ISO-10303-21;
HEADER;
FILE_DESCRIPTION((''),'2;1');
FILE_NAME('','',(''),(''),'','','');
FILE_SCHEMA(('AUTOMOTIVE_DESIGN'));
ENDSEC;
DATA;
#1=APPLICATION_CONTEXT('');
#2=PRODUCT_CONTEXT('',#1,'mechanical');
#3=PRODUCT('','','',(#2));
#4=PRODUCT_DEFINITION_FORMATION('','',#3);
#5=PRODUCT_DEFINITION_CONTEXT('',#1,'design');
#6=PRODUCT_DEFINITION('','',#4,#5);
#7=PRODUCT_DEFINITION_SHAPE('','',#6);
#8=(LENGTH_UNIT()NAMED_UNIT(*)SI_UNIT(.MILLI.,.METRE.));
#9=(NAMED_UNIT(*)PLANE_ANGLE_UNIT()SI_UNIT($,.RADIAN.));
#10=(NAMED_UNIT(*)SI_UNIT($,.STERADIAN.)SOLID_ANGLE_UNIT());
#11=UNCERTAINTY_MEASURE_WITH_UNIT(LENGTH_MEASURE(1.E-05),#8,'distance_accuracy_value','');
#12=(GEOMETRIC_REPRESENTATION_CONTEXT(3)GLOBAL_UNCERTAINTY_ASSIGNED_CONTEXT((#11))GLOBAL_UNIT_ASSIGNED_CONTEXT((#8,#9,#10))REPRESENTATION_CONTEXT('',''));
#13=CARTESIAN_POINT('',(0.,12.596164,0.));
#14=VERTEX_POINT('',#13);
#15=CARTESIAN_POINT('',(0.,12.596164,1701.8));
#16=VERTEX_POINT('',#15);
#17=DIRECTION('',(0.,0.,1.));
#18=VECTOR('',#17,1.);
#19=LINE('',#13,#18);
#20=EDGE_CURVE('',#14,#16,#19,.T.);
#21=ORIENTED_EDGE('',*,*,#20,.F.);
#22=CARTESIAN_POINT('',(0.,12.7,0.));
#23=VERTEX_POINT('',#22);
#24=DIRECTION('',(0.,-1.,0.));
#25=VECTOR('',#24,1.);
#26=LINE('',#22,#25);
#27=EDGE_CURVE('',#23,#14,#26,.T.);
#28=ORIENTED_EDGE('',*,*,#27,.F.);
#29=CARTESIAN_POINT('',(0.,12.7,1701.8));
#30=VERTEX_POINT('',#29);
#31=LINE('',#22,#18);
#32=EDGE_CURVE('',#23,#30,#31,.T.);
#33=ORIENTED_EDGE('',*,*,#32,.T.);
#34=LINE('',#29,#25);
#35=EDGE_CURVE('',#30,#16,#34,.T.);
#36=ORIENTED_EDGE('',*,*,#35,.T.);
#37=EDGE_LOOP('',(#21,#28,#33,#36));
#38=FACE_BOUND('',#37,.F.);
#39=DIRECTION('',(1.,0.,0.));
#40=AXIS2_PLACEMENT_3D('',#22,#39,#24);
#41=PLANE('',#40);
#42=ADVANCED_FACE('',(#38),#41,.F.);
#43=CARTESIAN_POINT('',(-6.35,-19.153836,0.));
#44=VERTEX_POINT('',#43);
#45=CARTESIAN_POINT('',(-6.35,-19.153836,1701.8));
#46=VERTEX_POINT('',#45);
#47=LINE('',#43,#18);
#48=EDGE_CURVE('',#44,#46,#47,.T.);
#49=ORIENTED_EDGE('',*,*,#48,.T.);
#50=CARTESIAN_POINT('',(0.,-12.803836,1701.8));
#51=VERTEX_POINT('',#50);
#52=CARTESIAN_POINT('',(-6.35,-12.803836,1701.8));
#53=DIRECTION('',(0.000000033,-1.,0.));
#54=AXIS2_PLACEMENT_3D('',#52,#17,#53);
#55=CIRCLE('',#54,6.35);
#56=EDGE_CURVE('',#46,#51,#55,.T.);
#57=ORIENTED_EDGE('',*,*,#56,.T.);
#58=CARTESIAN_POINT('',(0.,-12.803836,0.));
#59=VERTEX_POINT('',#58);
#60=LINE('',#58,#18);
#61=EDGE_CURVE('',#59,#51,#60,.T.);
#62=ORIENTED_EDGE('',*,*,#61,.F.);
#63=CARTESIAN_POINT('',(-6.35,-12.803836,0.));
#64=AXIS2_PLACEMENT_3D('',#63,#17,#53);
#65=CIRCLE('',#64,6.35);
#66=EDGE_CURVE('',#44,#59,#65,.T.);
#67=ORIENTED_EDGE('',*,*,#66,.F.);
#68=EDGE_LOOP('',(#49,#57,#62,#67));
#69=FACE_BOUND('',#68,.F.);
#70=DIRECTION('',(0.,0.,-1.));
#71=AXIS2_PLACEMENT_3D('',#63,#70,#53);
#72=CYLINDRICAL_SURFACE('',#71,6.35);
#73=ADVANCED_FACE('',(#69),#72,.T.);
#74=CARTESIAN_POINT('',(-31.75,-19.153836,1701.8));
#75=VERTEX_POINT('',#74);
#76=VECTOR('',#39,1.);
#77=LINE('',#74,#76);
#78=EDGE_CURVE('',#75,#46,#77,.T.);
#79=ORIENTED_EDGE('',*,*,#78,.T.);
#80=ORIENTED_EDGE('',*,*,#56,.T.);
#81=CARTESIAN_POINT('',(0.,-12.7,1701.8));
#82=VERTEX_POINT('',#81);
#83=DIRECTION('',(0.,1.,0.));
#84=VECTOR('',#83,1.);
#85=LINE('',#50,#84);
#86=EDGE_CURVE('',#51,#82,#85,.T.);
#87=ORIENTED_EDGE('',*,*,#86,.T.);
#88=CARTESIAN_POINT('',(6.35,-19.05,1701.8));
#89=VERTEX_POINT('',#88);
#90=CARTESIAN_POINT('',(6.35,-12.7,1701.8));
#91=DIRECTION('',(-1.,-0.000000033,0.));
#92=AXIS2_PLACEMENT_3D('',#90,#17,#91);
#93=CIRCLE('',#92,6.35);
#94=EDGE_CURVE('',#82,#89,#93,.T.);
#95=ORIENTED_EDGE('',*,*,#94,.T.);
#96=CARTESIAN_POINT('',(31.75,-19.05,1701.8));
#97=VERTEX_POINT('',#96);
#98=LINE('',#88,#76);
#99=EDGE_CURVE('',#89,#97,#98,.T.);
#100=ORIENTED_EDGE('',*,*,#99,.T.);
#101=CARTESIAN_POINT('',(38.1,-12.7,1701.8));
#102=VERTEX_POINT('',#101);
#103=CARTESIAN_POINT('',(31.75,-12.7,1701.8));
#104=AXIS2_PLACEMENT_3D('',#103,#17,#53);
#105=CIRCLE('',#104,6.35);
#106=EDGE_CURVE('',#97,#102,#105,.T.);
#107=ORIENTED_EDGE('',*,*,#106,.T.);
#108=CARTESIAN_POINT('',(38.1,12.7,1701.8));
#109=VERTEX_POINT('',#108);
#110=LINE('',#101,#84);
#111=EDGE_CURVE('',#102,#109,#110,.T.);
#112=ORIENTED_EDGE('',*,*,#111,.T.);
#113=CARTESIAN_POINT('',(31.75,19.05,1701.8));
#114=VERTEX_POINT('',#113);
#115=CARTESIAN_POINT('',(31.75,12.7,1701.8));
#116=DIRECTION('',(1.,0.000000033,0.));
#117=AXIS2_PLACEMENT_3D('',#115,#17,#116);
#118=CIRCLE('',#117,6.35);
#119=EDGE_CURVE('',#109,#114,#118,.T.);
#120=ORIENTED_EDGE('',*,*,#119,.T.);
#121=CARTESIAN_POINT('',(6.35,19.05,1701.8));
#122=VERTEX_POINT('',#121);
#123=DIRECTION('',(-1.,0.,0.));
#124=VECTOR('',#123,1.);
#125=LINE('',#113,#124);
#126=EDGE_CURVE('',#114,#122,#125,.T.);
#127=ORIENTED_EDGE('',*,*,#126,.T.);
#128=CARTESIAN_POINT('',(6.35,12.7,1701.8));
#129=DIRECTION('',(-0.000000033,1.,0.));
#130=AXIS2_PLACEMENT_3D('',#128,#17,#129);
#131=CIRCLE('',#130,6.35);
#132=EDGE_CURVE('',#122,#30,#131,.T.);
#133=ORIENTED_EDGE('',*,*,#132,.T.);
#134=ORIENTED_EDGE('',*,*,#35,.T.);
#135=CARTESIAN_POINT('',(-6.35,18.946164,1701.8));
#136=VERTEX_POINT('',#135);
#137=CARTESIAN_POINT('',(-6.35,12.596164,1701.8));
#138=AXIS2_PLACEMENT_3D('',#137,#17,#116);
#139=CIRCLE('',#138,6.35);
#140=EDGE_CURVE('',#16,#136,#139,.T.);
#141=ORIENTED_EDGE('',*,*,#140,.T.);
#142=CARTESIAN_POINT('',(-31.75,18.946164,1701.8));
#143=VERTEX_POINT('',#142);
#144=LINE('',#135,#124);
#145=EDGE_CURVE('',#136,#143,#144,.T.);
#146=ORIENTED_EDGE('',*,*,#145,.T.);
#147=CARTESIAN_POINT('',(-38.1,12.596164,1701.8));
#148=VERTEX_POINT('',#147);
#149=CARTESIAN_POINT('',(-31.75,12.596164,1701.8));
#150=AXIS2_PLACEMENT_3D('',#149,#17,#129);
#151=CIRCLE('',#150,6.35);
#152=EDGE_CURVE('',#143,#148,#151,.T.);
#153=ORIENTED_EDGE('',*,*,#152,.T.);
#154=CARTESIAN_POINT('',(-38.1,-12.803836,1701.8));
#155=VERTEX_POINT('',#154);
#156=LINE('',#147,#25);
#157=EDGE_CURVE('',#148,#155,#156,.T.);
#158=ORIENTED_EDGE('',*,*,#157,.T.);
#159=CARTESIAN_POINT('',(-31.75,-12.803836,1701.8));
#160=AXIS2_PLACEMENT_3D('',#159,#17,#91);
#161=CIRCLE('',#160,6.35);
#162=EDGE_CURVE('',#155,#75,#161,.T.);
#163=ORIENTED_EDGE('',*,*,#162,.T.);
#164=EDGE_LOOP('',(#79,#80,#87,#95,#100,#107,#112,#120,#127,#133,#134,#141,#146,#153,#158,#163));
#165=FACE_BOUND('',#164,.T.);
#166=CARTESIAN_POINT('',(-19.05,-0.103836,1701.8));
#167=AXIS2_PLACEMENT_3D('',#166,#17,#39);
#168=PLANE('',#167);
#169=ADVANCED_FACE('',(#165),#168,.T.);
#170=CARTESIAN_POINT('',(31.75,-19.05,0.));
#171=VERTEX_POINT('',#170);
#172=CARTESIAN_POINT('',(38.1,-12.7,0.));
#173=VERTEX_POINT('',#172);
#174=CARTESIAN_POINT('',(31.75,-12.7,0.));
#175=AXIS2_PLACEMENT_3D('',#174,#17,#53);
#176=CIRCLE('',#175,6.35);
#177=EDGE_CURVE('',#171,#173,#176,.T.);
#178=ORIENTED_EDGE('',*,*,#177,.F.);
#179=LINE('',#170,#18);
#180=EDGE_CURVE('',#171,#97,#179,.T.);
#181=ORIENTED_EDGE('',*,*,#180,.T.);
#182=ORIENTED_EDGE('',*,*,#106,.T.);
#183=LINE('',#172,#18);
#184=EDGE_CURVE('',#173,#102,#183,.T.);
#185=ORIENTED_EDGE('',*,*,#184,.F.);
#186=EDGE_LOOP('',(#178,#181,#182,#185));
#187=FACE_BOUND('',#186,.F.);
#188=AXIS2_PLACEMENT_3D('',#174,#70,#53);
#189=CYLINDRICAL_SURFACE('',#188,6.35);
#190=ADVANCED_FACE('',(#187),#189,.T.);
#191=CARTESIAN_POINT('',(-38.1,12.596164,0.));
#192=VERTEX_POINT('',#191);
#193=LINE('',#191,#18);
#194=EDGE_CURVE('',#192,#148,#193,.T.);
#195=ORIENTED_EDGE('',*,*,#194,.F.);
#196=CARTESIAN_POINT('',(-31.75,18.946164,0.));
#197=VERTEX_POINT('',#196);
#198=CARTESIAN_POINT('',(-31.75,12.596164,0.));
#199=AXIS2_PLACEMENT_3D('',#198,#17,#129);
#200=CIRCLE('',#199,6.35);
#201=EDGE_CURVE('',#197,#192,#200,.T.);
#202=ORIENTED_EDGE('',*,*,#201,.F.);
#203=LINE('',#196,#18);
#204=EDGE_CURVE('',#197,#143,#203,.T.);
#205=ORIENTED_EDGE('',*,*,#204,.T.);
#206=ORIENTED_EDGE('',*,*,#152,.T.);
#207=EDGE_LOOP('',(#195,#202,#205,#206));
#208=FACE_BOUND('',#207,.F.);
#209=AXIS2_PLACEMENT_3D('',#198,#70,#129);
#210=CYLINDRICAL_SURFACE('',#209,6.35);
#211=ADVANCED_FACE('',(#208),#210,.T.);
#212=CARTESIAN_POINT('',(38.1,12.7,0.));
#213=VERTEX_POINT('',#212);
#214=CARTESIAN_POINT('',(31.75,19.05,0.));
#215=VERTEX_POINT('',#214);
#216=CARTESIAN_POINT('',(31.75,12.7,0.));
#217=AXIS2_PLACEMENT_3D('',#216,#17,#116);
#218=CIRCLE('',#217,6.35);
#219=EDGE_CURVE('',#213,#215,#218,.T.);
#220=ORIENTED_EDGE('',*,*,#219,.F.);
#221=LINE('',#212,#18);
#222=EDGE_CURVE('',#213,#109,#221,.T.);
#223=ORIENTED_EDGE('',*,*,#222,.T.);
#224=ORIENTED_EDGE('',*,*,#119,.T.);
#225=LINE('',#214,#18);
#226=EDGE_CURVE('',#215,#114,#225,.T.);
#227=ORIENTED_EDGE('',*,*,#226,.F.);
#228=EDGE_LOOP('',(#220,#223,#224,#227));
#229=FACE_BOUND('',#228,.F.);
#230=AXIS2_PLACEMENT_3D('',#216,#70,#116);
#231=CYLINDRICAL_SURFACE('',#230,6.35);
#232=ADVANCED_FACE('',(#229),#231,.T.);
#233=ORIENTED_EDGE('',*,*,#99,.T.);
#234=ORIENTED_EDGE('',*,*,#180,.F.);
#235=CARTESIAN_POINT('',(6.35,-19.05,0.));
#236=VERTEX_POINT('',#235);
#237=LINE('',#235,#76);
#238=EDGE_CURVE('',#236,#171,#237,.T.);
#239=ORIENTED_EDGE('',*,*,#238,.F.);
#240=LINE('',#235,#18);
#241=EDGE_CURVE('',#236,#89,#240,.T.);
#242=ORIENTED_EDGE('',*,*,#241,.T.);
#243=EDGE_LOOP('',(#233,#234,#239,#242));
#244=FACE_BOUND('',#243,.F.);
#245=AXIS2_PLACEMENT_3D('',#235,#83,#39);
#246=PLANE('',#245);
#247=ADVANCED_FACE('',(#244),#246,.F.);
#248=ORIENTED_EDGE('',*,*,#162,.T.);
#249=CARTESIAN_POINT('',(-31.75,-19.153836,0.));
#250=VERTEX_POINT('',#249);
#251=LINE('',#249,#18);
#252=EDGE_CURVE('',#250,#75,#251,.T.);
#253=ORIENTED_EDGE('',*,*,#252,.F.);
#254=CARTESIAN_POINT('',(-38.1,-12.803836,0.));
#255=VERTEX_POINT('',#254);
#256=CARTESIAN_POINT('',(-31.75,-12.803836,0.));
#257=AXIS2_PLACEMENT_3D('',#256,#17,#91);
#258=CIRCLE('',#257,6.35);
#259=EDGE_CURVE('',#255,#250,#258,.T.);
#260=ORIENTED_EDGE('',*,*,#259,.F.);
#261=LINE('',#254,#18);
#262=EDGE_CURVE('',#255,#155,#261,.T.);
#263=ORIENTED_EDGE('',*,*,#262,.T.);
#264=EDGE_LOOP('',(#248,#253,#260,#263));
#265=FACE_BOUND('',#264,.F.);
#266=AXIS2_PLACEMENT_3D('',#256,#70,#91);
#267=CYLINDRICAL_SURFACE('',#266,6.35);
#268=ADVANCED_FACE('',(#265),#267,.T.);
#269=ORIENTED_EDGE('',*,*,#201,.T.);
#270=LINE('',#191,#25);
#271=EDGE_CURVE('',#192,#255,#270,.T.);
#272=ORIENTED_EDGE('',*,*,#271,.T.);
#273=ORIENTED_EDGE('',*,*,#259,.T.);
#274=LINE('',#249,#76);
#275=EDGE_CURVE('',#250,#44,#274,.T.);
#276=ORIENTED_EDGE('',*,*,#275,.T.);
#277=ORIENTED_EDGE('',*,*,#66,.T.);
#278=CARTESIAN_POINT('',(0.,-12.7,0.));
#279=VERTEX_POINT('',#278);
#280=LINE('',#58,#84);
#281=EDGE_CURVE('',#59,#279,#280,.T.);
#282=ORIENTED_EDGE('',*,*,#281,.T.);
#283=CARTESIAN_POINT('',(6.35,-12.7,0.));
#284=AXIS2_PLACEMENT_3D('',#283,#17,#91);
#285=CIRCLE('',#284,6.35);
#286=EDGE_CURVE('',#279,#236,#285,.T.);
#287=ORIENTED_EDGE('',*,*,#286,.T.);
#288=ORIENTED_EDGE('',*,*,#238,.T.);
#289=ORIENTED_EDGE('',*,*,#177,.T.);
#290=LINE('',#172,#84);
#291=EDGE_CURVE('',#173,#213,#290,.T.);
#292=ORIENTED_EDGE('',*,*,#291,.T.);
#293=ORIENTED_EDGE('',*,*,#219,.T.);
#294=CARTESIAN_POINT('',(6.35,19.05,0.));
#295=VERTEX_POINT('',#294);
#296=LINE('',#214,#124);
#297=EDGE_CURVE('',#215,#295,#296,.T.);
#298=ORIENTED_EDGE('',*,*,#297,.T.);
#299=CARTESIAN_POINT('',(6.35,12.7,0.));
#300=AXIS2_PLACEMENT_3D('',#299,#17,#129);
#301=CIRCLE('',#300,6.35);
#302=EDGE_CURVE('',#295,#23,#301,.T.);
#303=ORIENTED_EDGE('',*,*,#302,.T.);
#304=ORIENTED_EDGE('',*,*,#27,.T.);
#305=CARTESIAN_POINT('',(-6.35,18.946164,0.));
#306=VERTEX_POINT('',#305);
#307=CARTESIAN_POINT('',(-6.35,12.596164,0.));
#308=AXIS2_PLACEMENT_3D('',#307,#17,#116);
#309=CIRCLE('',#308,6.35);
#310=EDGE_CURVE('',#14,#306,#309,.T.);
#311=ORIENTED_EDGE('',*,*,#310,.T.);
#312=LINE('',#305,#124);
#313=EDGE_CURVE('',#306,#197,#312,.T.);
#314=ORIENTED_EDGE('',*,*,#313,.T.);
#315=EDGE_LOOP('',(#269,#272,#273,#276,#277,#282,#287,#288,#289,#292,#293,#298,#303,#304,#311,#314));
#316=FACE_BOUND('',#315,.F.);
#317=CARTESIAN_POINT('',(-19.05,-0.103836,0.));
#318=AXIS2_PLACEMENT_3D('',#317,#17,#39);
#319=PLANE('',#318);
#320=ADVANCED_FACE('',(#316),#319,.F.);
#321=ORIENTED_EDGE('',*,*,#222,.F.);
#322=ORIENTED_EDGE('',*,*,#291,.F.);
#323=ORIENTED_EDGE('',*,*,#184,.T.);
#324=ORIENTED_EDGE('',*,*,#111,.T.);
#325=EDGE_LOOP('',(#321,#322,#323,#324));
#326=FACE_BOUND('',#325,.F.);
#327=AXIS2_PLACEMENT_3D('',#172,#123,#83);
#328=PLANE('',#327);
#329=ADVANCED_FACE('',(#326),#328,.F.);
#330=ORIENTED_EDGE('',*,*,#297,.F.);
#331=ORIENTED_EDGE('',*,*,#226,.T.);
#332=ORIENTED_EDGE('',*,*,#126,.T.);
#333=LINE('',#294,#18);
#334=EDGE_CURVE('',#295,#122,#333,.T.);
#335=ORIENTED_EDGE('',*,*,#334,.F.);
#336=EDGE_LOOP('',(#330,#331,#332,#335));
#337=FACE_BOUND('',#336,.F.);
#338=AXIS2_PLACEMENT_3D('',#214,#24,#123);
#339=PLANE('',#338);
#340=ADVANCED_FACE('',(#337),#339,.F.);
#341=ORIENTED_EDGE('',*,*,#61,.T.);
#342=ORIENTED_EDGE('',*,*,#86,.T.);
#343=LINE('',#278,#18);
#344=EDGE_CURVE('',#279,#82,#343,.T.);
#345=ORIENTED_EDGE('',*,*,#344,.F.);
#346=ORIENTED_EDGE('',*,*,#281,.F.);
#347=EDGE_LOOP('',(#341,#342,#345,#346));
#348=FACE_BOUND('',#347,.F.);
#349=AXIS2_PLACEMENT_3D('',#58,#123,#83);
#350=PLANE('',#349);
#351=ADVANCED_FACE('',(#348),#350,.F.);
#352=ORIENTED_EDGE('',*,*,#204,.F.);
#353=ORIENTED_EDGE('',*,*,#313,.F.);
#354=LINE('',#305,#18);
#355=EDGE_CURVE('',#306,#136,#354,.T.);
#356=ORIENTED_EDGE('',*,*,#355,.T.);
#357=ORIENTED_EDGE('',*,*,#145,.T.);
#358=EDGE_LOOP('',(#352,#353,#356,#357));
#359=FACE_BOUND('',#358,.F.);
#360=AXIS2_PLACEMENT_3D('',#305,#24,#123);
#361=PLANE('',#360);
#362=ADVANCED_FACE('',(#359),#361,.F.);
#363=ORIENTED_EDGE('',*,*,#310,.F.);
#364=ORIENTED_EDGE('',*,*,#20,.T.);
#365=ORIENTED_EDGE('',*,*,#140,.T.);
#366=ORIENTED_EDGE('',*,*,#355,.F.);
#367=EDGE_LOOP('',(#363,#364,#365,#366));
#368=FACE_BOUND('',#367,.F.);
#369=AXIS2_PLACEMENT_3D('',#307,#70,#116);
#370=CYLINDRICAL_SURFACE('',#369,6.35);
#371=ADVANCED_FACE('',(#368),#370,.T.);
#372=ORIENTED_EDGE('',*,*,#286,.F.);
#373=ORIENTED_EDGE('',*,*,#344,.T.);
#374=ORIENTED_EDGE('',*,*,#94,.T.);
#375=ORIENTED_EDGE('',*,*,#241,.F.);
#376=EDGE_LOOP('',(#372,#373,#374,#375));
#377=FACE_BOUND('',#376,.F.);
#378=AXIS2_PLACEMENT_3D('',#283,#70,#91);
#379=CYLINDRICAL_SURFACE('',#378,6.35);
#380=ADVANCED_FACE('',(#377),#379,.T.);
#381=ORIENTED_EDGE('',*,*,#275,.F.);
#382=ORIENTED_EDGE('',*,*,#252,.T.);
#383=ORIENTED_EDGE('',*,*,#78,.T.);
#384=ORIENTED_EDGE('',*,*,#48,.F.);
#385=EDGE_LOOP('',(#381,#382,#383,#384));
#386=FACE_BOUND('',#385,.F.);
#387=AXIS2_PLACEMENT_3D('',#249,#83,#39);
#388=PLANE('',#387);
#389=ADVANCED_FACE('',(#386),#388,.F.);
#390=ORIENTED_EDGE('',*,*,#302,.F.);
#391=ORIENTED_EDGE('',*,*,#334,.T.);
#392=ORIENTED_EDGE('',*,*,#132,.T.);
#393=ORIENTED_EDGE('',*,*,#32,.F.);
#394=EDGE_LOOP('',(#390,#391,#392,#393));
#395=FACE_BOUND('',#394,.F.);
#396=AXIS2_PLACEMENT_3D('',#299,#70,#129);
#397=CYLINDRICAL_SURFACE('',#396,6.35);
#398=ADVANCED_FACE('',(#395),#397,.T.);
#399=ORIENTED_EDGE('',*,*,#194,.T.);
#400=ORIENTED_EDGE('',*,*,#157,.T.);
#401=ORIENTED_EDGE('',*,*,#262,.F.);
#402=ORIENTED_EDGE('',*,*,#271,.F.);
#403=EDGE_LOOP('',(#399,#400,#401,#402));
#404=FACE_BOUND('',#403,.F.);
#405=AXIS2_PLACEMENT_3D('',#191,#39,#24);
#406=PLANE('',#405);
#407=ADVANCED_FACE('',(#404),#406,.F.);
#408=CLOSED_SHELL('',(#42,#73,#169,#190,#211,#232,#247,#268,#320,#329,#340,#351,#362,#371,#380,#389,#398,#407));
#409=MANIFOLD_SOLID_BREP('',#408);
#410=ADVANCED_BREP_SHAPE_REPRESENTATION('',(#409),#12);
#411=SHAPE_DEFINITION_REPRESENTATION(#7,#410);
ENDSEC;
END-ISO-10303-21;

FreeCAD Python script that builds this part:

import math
import FreeCAD as App
import Part
import Sketcher

V = App.Vector
Q = App.Units.Quantity

doc = App.newDocument("Part")
body = doc.addObject("PartDesign::Body", "Body")

# Sketch on XY plane
sketch1 = body.newObject("Sketcher::SketchObject", "Sketch")
sketch1.AttachmentSupport = (doc.getObject("XY_Plane"), [""])
sketch1.MapMode = "FlatFace"
sketch1.addGeometry([
    Part.ArcOfCircle(Part.Circle(V(-6.35, 12.6, 0), V(0, 0, 1), 6.35), math.radians(0), math.radians(90)),  # 0
    Part.LineSegment(V(-6.35, 18.95, 0), V(-31.75, 18.95, 0)),  # 1
    Part.ArcOfCircle(Part.Circle(V(-31.75, 12.6, 0), V(0, 0, 1), 6.35), math.radians(90), math.radians(180)),  # 2
    Part.LineSegment(V(-38.1, 12.6, 0), V(-38.1, -12.8, 0)),  # 3
    Part.ArcOfCircle(Part.Circle(V(-31.75, -12.8, 0), V(0, 0, 1), 6.35), math.radians(-180), math.radians(-90)),  # 4
    Part.LineSegment(V(-31.75, -19.15, 0), V(-6.35, -19.15, 0)),  # 5
    Part.ArcOfCircle(Part.Circle(V(-6.35, -12.8, 0), V(0, 0, 1), 6.35), math.radians(-90), math.radians(0)),  # 6
    Part.LineSegment(V(0, -12.8, 0), V(0, -12.7, 0)),  # 7
    Part.ArcOfCircle(Part.Circle(V(6.35, -12.7, 0), V(0, 0, 1), 6.35), math.radians(-180), math.radians(-90)),  # 8
    Part.LineSegment(V(6.35, -19.05, 0), V(31.75, -19.05, 0)),  # 9
    Part.ArcOfCircle(Part.Circle(V(31.75, -12.7, 0), V(0, 0, 1), 6.35), math.radians(-90), math.radians(0)),  # 10
    Part.LineSegment(V(38.1, -12.7, 0), V(38.1, 12.7, 0)),  # 11
    Part.ArcOfCircle(Part.Circle(V(31.75, 12.7, 0), V(0, 0, 1), 6.35), math.radians(0), math.radians(90)),  # 12
    Part.LineSegment(V(31.75, 19.05, 0), V(6.35, 19.05, 0)),  # 13
    Part.ArcOfCircle(Part.Circle(V(6.35, 12.7, 0), V(0, 0, 1), 6.35), math.radians(90), math.radians(180)),  # 14
    Part.LineSegment(V(0, 12.7, 0), V(0, 12.6, 0)),  # 15
], False)
sketch1.addConstraint([
    Sketcher.Constraint("Tangent", 0, 2, 1, 1),
    Sketcher.Constraint("Tangent", 1, 2, 2, 1),
    Sketcher.Constraint("Tangent", 2, 2, 3, 1),
    Sketcher.Constraint("Tangent", 3, 2, 4, 1),
    Sketcher.Constraint("Tangent", 4, 2, 5, 1),
    Sketcher.Constraint("Tangent", 5, 2, 6, 1),
    Sketcher.Constraint("Tangent", 6, 2, 7, 1),
    Sketcher.Constraint("Tangent", 7, 2, 8, 1),
    Sketcher.Constraint("Tangent", 8, 2, 9, 1),
    Sketcher.Constraint("Tangent", 9, 2, 10, 1),
    Sketcher.Constraint("Tangent", 10, 2, 11, 1),
    Sketcher.Constraint("Tangent", 11, 2, 12, 1),
    Sketcher.Constraint("Tangent", 12, 2, 13, 1),
    Sketcher.Constraint("Tangent", 13, 2, 14, 1),
    Sketcher.Constraint("Tangent", 14, 2, 15, 1),
    Sketcher.Constraint("Tangent", 15, 2, 0, 1),
    Sketcher.Constraint("Horizontal", 1),
    Sketcher.Constraint("Vertical", 3),
    Sketcher.Constraint("Horizontal", 5),
    Sketcher.Constraint("Vertical", 7),
    Sketcher.Constraint("Horizontal", 9),
    Sketcher.Constraint("Vertical", 11),
    Sketcher.Constraint("Horizontal", 13),
    Sketcher.Constraint("Vertical", 15),
    Sketcher.Constraint("Equal", 0, 2),
    Sketcher.Constraint("Equal", 2, 4),
    Sketcher.Constraint("Equal", 4, 6),
    Sketcher.Constraint("Equal", 6, 8),
    Sketcher.Constraint("Equal", 8, 10),
    Sketcher.Constraint("Equal", 10, 12),
    Sketcher.Constraint("Equal", 12, 14),
    Sketcher.Constraint("Symmetric", 7, 2, 14, 2, -1, 1),
    Sketcher.Constraint("PointOnObject", 6, 2, -2),
    Sketcher.Constraint("Equal", 5, 9),
    Sketcher.Constraint("Equal", 13, 3),
    Sketcher.Constraint("Equal", 3, 11),
    Sketcher.Constraint("DistanceX", 1, 2, 1, 1, Q("1 in")),
    Sketcher.Constraint("Radius", 0, Q("0.25 in")),
    Sketcher.Constraint("DistanceY", 7, 1, 7, 2, 0.103836),
])
pad1 = body.newObject("PartDesign::Pad", "Pad")
pad1.Profile = sketch1
pad1.Length = Q("67 in")

doc.recompute()
